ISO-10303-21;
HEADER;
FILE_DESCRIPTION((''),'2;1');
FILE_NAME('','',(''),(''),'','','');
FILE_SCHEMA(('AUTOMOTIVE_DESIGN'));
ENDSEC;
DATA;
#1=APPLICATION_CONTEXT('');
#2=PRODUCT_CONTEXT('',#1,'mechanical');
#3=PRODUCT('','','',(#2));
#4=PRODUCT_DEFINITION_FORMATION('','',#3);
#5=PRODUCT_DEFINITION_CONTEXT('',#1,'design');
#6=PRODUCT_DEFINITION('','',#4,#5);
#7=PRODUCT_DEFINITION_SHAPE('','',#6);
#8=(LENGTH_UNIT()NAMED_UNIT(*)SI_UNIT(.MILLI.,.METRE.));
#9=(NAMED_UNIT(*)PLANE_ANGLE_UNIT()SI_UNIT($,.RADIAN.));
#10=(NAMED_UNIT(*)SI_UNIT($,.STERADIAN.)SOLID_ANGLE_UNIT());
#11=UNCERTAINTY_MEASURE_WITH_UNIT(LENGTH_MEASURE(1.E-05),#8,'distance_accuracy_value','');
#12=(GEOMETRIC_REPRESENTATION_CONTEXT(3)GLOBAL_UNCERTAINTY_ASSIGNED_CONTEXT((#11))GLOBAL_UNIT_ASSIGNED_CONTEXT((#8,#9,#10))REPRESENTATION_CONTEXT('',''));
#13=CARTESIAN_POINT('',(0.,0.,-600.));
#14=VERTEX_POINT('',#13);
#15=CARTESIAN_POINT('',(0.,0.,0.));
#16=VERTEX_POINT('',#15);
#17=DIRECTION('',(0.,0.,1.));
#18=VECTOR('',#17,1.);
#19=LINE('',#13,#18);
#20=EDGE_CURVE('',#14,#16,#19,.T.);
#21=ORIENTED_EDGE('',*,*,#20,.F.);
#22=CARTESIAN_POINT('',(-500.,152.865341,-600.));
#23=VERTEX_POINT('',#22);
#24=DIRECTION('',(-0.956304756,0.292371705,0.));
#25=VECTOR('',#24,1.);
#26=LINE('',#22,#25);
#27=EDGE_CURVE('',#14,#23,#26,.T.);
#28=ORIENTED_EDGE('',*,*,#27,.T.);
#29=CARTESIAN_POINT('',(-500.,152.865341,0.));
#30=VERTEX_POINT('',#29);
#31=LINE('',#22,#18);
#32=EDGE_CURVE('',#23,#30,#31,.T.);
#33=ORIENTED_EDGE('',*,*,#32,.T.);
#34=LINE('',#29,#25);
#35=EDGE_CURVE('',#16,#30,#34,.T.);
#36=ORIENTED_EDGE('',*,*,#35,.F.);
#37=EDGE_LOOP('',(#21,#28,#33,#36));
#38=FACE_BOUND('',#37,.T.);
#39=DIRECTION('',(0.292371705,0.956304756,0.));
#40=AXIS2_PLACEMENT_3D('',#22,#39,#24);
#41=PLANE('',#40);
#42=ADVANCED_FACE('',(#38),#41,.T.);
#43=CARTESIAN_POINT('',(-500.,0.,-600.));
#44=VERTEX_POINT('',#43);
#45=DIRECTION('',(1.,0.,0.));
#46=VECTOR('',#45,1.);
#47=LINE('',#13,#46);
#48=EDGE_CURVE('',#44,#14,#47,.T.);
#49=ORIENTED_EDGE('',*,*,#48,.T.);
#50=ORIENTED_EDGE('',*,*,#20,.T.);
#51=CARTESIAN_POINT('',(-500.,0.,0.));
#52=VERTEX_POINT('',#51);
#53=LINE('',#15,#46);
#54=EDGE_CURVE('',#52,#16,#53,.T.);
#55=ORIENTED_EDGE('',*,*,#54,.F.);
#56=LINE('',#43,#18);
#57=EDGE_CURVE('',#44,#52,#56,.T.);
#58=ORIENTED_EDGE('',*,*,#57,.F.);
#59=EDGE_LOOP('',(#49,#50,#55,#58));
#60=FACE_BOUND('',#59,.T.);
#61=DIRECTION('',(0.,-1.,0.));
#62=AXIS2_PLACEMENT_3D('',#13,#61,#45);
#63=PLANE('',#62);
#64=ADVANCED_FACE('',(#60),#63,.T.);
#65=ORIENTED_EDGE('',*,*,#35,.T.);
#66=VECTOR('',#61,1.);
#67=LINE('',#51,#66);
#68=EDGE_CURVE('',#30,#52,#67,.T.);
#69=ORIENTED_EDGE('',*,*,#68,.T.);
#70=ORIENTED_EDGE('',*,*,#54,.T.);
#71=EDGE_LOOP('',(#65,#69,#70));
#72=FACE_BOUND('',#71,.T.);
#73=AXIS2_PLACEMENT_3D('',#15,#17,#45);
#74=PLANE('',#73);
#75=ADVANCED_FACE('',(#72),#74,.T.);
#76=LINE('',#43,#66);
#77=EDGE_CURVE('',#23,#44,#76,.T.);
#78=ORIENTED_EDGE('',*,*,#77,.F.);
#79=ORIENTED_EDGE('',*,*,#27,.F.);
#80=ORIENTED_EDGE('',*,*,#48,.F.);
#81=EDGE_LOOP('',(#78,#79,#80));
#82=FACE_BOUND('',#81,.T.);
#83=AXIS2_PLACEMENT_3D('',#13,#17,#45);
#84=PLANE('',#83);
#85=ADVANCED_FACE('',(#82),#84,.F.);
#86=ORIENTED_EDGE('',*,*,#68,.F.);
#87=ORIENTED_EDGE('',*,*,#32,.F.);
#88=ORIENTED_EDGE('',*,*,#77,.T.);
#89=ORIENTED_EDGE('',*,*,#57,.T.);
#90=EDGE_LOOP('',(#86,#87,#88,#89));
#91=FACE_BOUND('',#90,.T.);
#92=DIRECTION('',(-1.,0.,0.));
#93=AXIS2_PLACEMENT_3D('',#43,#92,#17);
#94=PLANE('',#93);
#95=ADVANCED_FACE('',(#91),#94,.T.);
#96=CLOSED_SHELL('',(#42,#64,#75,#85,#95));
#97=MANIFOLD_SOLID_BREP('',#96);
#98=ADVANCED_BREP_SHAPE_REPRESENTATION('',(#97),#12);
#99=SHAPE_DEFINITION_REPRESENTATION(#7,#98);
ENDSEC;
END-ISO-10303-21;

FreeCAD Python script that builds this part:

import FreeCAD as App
import Part
import Sketcher

V = App.Vector
Q = App.Units.Quantity

doc = App.newDocument("Part")
params = doc.addObject("Spreadsheet::Sheet", "Params")
for row, (alias, value) in enumerate([
    ("sketch1_width", "500 mm"),
    ("pad1_length", "600 mm"),
], start=1):
    params.set(f"A{row}", alias)
    params.set(f"B{row}", "=" + value)
    params.setAlias(f"B{row}", alias)

body = doc.addObject("PartDesign::Body", "Body")

sketch1 = body.newObject("Sketcher::SketchObject", "Sketch")
sketch1.AttachmentSupport = (doc.getObject("XY_Plane"), [""])
sketch1.MapMode = "FlatFace"
sketch1.addGeometry(Part.LineSegment(V(-500, 0, 0), V(0, 0, 0)), False)
sketch1.addGeometry(Part.LineSegment(V(0, 0, 0), V(-500, 153, 0)), False)
sketch1.addGeometry(Part.LineSegment(V(-500, 153, 0), V(-500, 0, 0)), False)
sketch1.addConstraint(Sketcher.Constraint("Coincident", 0, 2, 1, 1))
sketch1.addConstraint(Sketcher.Constraint("Coincident", 1, 2, 2, 1))
sketch1.addConstraint(Sketcher.Constraint("Coincident", 2, 2, 0, 1))
sketch1.addConstraint(Sketcher.Constraint("Horizontal", 0))
sketch1.addConstraint(Sketcher.Constraint("Vertical", 2))
sketch1.addConstraint(Sketcher.Constraint("Coincident", 0, 2, -1, 1))
sketch1.addConstraint(Sketcher.Constraint("DistanceX", 0, 1, 0, 2, 500.0))
sketch1.addConstraint(Sketcher.Constraint("Angle", 1, Q("163 deg")))
sketch1.setExpression("Constraints[6]", "Params.sketch1_width")
pad1 = body.newObject("PartDesign::Pad", "Pad")
pad1.Profile = sketch1
pad1.setExpression("Length", "Params.pad1_length")
pad1.Reversed = True

doc.recompute()
